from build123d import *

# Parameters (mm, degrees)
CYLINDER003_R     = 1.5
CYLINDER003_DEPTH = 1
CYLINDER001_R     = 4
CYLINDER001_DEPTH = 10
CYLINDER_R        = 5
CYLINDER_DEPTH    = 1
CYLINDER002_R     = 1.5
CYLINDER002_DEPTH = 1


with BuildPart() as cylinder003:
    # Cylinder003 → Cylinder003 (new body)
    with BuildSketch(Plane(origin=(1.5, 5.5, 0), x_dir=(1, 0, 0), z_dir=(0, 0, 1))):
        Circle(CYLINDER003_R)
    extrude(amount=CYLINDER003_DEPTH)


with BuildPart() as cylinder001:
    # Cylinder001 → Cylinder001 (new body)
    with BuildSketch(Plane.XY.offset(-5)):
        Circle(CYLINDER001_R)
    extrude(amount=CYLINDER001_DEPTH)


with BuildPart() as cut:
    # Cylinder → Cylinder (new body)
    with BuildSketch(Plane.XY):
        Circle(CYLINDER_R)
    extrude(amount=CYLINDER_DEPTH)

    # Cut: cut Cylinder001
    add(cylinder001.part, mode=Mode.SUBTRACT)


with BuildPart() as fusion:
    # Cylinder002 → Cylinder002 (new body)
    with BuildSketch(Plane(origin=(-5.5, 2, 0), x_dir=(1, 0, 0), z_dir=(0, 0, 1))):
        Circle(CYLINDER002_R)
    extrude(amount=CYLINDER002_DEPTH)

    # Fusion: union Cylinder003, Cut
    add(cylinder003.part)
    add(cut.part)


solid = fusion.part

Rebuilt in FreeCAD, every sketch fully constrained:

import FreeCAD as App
import Part
import Sketcher
from FreeCAD import Vector
Q = App.Units.Quantity

doc = App.newDocument("Part")
body = doc.addObject("PartDesign::Body", "Body")

# Sketch on XY plane
sketch1 = body.newObject("Sketcher::SketchObject", "Sketch")
sketch1.AttachmentSupport = (doc.getObject("XY_Plane"), [""])
sketch1.MapMode = "FlatFace"
sketch1.addGeometry(Part.Circle(Vector(1.5, 5.5, 0), Vector(0, 0, 1), 1.5), False)
sketch1.addConstraint([
    Sketcher.Constraint("Diameter", 0, Q("3 mm")),
    Sketcher.Constraint("DistanceX", -1, 1, 0, 3, Q("1.5 mm")),
    Sketcher.Constraint("DistanceY", -1, 1, 0, 3, Q("5.5 mm")),
])
pad1 = body.newObject("PartDesign::Pad", "Pad")
pad1.Profile = sketch1
pad1.Length = 1
body2 = doc.addObject("PartDesign::Body", "Body001")

# Sketch on XY plane
sketch2 = body2.newObject("Sketcher::SketchObject", "Sketch001")
sketch2.AttachmentSupport = (doc.getObject("XY_Plane001"), [""])
sketch2.MapMode = "FlatFace"
sketch2.AttachmentOffset = App.Placement(Vector(0, 0, -5), App.Rotation())
sketch2.addGeometry(Part.Circle(Vector(0, 0, 0), Vector(0, 0, 1), 4), False)
sketch2.addConstraint([
    Sketcher.Constraint("Coincident", 0, 3, -1, 1),
    Sketcher.Constraint("Diameter", 0, Q("8 mm")),
])
pad2 = body2.newObject("PartDesign::Pad", "Pad001")
pad2.Profile = sketch2
pad2.Length = 10
body3 = doc.addObject("PartDesign::Body", "Body002")

# Sketch on XY plane
sketch3 = body3.newObject("Sketcher::SketchObject", "Sketch002")
sketch3.AttachmentSupport = (doc.getObject("XY_Plane002"), [""])
sketch3.MapMode = "FlatFace"
sketch3.addGeometry(Part.Circle(Vector(0, 0, 0), Vector(0, 0, 1), 5), False)
sketch3.addConstraint([
    Sketcher.Constraint("Coincident", 0, 3, -1, 1),
    Sketcher.Constraint("Diameter", 0, Q("10 mm")),
])
pad3 = body3.newObject("PartDesign::Pad", "Pad002")
pad3.Profile = sketch3
pad3.Length = 1
doc.recompute()

boolean = body3.newObject("PartDesign::Boolean", "Boolean")
boolean.Type = "Cut"
boolean.addObjects([body2])
body4 = doc.addObject("PartDesign::Body", "Body003")
body4.AllowCompound = True

# Sketch on XY plane
sketch4 = body4.newObject("Sketcher::SketchObject", "Sketch003")
sketch4.AttachmentSupport = (doc.getObject("XY_Plane003"), [""])
sketch4.MapMode = "FlatFace"
sketch4.addGeometry(Part.Circle(Vector(-5.5, 2, 0), Vector(0, 0, 1), 1.5), False)
sketch4.addConstraint([
    Sketcher.Constraint("Diameter", 0, Q("3 mm")),
    Sketcher.Constraint("DistanceY", -1, 1, 0, 3, Q("2 mm")),
    Sketcher.Constraint("DistanceX", 0, 3, -1, 1, Q("5.5 mm")),
])
pad4 = body4.newObject("PartDesign::Pad", "Pad003")
pad4.Profile = sketch4
pad4.Length = 1
doc.recompute()

boolean2 = body4.newObject("PartDesign::Boolean", "Boolean001")
boolean2.Type = "Fuse"
boolean2.addObjects([body])
doc.recompute()

boolean3 = body4.newObject("PartDesign::Boolean", "Boolean002")
boolean3.Type = "Fuse"
boolean3.addObjects([body3])

doc.recompute()
